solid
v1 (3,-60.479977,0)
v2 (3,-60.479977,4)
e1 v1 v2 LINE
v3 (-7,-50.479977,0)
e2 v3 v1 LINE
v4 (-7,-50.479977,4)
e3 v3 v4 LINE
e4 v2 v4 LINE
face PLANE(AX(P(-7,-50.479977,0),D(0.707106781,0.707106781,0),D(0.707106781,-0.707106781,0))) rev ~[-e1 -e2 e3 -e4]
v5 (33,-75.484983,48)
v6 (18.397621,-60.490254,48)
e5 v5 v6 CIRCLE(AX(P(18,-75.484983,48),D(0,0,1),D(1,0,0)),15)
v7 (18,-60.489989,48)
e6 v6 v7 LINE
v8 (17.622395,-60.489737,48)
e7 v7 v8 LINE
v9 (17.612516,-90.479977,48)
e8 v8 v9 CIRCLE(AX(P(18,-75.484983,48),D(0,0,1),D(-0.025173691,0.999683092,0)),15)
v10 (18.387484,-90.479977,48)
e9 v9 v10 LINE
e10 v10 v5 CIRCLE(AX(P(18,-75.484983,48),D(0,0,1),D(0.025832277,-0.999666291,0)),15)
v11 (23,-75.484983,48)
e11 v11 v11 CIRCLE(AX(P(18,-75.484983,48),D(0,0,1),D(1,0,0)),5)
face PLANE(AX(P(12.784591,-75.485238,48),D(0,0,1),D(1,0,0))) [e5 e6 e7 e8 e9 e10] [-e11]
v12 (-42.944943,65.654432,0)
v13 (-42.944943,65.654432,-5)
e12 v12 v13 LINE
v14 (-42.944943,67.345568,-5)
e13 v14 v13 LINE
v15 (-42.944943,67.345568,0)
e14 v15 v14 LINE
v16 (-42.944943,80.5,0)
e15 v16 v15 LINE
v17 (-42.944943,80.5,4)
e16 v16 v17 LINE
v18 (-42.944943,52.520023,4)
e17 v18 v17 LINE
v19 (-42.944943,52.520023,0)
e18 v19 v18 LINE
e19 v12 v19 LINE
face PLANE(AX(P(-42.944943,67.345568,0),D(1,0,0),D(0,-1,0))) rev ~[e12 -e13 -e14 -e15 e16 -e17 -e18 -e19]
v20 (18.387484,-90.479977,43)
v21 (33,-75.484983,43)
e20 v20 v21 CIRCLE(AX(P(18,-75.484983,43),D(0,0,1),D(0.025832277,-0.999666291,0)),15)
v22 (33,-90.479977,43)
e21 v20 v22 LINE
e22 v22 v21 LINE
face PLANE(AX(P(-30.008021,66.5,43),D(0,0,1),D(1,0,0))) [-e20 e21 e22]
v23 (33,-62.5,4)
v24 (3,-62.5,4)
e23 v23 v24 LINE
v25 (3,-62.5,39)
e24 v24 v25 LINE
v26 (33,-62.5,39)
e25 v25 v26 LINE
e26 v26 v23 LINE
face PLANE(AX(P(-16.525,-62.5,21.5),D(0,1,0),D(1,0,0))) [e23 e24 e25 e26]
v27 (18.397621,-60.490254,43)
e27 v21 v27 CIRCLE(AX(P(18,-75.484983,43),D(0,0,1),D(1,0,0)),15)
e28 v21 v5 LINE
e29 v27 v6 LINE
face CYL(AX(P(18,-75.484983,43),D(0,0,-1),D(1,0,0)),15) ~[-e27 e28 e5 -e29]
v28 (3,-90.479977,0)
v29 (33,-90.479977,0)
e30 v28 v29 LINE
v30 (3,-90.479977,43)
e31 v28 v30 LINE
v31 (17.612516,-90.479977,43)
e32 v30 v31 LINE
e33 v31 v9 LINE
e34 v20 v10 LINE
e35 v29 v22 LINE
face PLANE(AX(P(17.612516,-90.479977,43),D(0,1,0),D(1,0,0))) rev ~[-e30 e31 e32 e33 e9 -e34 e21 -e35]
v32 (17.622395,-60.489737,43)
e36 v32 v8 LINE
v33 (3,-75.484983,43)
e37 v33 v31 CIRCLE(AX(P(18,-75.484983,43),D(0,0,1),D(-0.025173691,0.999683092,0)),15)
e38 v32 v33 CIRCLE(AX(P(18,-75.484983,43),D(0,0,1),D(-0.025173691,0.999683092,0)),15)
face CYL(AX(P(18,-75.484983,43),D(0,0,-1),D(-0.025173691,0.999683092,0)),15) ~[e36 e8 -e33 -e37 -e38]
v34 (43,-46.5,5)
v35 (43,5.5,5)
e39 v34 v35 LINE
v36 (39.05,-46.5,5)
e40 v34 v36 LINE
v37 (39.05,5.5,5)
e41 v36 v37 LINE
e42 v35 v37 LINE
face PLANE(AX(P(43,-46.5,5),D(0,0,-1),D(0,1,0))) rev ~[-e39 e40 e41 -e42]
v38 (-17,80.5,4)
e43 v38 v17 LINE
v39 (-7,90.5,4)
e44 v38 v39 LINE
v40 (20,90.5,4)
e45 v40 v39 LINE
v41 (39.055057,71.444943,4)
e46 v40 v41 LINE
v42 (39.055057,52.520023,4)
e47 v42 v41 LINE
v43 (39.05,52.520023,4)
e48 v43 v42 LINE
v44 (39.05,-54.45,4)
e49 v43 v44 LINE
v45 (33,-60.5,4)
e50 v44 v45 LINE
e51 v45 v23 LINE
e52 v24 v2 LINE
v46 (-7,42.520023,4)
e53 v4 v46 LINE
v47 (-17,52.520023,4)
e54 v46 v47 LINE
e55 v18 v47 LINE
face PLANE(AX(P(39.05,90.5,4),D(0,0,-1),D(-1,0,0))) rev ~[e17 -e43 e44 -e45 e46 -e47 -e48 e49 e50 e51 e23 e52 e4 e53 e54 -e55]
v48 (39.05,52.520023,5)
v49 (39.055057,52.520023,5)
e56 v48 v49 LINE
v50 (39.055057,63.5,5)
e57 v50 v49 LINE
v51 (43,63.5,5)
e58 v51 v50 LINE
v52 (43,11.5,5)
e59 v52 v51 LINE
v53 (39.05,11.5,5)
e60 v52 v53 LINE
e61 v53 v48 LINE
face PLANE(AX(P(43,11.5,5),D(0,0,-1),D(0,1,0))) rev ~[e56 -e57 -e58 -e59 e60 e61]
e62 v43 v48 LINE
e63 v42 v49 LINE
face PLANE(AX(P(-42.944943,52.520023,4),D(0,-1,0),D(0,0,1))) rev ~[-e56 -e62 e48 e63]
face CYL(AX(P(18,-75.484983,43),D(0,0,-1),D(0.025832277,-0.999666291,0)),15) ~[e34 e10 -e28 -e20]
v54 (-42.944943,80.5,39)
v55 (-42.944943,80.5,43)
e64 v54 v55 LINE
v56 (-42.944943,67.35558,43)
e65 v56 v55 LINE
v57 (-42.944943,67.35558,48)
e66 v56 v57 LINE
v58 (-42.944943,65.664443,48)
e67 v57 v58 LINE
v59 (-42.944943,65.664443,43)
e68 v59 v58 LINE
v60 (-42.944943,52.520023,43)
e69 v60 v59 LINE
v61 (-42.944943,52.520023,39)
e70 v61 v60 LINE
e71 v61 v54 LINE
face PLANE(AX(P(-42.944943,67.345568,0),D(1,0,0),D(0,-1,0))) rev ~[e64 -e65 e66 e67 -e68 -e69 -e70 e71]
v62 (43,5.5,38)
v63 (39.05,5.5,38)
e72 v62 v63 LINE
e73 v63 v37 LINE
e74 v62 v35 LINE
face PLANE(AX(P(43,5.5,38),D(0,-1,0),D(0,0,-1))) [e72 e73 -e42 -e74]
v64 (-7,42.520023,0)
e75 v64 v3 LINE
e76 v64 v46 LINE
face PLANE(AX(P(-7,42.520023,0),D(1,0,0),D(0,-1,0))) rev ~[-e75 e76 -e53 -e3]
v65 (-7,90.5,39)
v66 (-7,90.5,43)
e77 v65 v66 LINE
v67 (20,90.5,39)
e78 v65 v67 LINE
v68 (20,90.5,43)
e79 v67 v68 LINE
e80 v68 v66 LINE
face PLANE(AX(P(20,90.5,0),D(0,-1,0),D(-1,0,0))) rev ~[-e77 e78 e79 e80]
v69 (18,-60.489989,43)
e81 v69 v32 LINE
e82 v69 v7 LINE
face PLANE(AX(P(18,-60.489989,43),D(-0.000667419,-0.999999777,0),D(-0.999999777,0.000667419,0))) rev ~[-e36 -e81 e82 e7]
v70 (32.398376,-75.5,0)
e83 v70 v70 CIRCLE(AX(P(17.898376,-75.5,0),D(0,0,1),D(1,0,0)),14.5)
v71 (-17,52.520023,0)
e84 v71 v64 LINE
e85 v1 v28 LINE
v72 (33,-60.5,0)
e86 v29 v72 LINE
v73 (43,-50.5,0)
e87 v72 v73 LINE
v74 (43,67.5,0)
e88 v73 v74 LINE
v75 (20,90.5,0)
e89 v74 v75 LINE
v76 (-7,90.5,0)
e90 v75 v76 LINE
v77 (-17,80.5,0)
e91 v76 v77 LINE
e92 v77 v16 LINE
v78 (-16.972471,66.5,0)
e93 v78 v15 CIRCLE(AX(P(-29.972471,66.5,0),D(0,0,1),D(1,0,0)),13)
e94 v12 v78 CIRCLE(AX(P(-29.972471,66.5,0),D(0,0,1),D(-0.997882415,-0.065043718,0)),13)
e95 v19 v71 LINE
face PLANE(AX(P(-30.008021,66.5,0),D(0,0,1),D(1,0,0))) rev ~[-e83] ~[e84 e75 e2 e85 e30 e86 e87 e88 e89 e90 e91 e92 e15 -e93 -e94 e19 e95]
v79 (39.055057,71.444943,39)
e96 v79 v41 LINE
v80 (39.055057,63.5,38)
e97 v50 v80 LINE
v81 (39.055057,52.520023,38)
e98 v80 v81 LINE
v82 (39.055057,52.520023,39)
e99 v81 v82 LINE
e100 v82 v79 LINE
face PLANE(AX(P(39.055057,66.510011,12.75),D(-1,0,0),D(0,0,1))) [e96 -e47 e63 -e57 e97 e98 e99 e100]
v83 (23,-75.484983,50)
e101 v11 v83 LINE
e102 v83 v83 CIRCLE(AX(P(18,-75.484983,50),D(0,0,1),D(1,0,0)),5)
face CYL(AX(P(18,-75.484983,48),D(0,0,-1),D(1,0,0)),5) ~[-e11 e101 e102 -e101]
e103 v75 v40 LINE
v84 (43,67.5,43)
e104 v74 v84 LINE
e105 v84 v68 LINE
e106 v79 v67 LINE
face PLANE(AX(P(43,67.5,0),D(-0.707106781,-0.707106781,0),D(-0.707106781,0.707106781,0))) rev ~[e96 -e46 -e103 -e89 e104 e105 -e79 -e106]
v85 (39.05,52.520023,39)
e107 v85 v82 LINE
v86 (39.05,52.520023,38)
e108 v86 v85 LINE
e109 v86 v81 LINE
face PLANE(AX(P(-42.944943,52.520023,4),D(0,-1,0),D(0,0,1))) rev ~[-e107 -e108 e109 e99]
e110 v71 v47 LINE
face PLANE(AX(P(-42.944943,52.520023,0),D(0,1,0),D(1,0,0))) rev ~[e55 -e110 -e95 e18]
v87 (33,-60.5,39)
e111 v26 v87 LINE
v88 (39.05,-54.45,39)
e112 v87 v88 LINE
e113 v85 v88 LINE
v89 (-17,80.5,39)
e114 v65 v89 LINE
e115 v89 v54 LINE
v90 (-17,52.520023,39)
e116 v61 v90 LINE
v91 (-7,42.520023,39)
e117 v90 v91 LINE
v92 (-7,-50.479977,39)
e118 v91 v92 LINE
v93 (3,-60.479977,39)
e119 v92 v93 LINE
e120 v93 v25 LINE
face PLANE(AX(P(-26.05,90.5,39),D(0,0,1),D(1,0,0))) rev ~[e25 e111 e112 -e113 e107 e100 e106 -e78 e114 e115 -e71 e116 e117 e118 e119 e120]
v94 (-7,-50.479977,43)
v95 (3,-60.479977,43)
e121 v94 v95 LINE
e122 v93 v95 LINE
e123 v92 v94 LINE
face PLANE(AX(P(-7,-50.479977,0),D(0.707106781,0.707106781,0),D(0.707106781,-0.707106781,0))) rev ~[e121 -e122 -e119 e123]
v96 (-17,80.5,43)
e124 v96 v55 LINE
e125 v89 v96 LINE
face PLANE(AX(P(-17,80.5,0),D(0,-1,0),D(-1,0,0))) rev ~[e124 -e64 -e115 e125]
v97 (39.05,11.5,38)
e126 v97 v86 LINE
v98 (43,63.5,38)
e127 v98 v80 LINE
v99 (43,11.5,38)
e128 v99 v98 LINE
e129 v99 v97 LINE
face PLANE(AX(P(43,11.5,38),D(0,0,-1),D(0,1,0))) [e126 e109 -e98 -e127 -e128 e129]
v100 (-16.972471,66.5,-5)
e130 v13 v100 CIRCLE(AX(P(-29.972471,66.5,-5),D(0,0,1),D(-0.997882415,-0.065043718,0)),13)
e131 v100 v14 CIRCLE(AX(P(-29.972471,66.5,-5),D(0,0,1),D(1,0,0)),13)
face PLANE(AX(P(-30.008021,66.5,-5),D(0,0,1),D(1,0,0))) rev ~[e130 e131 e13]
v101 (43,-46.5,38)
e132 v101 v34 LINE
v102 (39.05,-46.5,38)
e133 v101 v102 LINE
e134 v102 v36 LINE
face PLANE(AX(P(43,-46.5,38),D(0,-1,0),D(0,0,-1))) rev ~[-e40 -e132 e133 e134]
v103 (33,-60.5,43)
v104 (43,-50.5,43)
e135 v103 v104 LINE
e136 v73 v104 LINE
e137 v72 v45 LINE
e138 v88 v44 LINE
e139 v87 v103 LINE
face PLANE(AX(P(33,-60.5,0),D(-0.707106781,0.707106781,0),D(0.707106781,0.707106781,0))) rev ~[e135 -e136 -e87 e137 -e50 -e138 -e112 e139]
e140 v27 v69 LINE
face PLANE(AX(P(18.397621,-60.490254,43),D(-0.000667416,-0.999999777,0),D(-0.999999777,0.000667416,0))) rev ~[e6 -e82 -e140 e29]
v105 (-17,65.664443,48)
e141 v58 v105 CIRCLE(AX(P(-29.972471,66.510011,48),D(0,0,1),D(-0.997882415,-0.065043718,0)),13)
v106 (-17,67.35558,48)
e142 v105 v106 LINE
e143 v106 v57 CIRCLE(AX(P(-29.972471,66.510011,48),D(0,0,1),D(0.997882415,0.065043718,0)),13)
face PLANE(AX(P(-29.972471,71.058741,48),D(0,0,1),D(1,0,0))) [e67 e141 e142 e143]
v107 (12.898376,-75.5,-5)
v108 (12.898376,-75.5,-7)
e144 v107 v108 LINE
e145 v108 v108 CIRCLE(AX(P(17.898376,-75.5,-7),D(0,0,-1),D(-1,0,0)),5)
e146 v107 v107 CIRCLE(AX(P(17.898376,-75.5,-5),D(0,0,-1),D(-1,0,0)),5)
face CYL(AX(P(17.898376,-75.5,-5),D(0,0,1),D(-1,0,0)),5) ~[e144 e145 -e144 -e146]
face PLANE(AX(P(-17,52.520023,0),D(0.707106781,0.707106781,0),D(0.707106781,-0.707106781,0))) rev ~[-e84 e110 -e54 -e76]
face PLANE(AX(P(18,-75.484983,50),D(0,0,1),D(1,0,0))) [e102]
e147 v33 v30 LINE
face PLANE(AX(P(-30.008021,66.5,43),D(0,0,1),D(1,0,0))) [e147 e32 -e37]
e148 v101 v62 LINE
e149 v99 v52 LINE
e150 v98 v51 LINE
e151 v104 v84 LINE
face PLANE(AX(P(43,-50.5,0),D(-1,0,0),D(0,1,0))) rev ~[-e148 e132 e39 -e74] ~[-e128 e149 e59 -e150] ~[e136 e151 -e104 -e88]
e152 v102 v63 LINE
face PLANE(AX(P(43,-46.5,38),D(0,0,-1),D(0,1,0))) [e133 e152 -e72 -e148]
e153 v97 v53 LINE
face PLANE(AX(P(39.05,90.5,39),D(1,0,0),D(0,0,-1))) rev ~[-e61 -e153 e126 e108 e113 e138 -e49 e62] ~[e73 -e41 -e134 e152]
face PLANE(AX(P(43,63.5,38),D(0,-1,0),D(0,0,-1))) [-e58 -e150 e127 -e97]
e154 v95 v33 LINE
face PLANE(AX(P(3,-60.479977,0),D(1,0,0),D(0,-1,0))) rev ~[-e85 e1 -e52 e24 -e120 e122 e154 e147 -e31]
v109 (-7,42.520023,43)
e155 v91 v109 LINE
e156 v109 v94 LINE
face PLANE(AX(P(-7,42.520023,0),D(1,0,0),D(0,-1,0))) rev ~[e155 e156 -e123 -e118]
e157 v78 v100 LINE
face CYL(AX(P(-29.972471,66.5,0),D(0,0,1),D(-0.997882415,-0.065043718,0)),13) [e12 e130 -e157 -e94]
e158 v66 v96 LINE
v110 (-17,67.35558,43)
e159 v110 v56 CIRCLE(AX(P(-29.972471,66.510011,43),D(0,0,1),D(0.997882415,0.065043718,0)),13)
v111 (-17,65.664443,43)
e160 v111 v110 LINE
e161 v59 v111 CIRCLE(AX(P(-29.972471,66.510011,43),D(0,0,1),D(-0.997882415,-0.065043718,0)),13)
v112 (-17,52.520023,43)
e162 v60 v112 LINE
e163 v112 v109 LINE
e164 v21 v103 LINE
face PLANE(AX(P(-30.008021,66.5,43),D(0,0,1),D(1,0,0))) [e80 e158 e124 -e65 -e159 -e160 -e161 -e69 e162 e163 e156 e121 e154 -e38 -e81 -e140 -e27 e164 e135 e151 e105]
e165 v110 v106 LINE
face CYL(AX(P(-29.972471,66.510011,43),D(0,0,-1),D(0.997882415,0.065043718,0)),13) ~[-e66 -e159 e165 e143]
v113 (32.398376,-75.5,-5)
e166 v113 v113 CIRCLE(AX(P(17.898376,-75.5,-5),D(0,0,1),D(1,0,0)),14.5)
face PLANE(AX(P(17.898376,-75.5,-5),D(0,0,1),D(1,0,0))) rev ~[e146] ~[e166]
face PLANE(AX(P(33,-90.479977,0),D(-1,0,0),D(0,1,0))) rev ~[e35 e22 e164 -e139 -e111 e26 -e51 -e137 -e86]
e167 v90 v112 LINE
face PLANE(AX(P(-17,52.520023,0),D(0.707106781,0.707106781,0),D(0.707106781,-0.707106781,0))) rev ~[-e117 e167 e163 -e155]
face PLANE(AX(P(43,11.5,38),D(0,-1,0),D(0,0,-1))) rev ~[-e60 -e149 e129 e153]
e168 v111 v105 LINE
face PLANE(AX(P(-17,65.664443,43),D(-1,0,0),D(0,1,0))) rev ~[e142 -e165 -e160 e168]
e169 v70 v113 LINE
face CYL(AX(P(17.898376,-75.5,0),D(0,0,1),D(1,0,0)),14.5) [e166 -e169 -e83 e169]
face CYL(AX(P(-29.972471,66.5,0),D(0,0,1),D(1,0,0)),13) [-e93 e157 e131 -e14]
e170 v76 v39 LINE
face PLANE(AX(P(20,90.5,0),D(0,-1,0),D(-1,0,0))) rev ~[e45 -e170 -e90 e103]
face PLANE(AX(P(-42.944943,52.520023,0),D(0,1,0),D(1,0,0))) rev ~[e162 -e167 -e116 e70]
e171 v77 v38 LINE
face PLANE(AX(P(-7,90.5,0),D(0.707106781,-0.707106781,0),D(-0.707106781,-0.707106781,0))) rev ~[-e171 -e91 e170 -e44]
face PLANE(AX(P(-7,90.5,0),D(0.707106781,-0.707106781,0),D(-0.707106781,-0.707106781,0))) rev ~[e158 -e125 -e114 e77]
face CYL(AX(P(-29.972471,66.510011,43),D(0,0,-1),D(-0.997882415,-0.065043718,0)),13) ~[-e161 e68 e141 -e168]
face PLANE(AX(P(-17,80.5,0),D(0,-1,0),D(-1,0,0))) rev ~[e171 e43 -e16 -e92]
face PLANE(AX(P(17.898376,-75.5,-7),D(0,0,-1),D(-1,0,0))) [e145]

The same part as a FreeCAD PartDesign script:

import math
import FreeCAD as App
import Part
import Sketcher

V = App.Vector
Q = App.Units.Quantity

doc = App.newDocument("Part")
body = doc.addObject("PartDesign::Body", "Body")

sketch1 = doc.addObject("Sketcher::SketchObject", "Sketch")
body.addObject(sketch1)
sketch1.AttachmentSupport = (doc.XY_Plane, [""])
sketch1.MapMode = "FlatFace"
sketch1.addGeometry(Part.LineSegment(V(-17, 80.5, 0), V(-42.944943, 80.5, 0)), False)
sketch1.addGeometry(Part.LineSegment(V(-42.944943, 80.5, 0), V(-42.944943, 67.345568, 0)), False)
sketch1.addGeometry(Part.ArcOfCircle(Part.Circle(V(-29.972471, 66.5, 0), V(0, 0, 1), 13), math.radians(0), math.radians(176.270637)), False)
sketch1.addGeometry(Part.ArcOfCircle(Part.Circle(V(-29.972471, 66.5, 0), V(0, 0, 1), 13), math.radians(-176.270637), math.radians(0)), False)
sketch1.addGeometry(Part.LineSegment(V(-42.944943, 65.654432, 0), V(-42.944943, 52.520023, 0)), False)
sketch1.addGeometry(Part.LineSegment(V(-42.944943, 52.520023, 0), V(-17, 52.520023, 0)), False)
sketch1.addGeometry(Part.LineSegment(V(-17, 52.520023, 0), V(-7, 42.520023, 0)), False)
sketch1.addGeometry(Part.LineSegment(V(-7, 42.520023, 0), V(-7, -50.479977, 0)), False)
sketch1.addGeometry(Part.LineSegment(V(-7, -50.479977, 0), V(3, -60.479977, 0)), False)
sketch1.addGeometry(Part.LineSegment(V(3, -60.479977, 0), V(3, -90.479977, 0)), False)
sketch1.addGeometry(Part.LineSegment(V(3, -90.479977, 0), V(33, -90.479977, 0)), False)
sketch1.addGeometry(Part.LineSegment(V(33, -90.479977, 0), V(33, -60.5, 0)), False)
sketch1.addGeometry(Part.LineSegment(V(33, -60.5, 0), V(43, -50.5, 0)), False)
sketch1.addGeometry(Part.LineSegment(V(43, -50.5, 0), V(43, 67.5, 0)), False)
sketch1.addGeometry(Part.LineSegment(V(43, 67.5, 0), V(20, 90.5, 0)), False)
sketch1.addGeometry(Part.LineSegment(V(20, 90.5, 0), V(-7, 90.5, 0)), False)
sketch1.addGeometry(Part.LineSegment(V(-7, 90.5, 0), V(-17, 80.5, 0)), False)
sketch1.addGeometry(Part.Circle(V(17.898376, -75.5, 0), V(0, 0, 1), 14.5), False)
sketch1.addConstraint(Sketcher.Constraint("Coincident", 0, 2, 1, 1))
sketch1.addConstraint(Sketcher.Constraint("Coincident", 1, 2, 2, 2))
sketch1.addConstraint(Sketcher.Constraint("Tangent", 2, 1, 3, 2))
sketch1.addConstraint(Sketcher.Constraint("Coincident", 3, 1, 4, 1))
sketch1.addConstraint(Sketcher.Constraint("Coincident", 4, 2, 5, 1))
sketch1.addConstraint(Sketcher.Constraint("Coincident", 5, 2, 6, 1))
sketch1.addConstraint(Sketcher.Constraint("Coincident", 6, 2, 7, 1))
sketch1.addConstraint(Sketcher.Constraint("Coincident", 7, 2, 8, 1))
sketch1.addConstraint(Sketcher.Constraint("Coincident", 8, 2, 9, 1))
sketch1.addConstraint(Sketcher.Constraint("Coincident", 9, 2, 10, 1))
sketch1.addConstraint(Sketcher.Constraint("Coincident", 10, 2, 11, 1))
sketch1.addConstraint(Sketcher.Constraint("Coincident", 11, 2, 12, 1))
sketch1.addConstraint(Sketcher.Constraint("Coincident", 12, 2, 13, 1))
sketch1.addConstraint(Sketcher.Constraint("Coincident", 13, 2, 14, 1))
sketch1.addConstraint(Sketcher.Constraint("Coincident", 14, 2, 15, 1))
sketch1.addConstraint(Sketcher.Constraint("Coincident", 15, 2, 16, 1))
sketch1.addConstraint(Sketcher.Constraint("Coincident", 16, 2, 0, 1))
sketch1.addConstraint(Sketcher.Constraint("Horizontal", 0))
sketch1.addConstraint(Sketcher.Constraint("Vertical", 1))
sketch1.addConstraint(Sketcher.Constraint("Vertical", 4))
sketch1.addConstraint(Sketcher.Constraint("Horizontal", 5))
sketch1.addConstraint(Sketcher.Constraint("Vertical", 7))
sketch1.addConstraint(Sketcher.Constraint("Vertical", 9))
sketch1.addConstraint(Sketcher.Constraint("Horizontal", 10))
sketch1.addConstraint(Sketcher.Constraint("Vertical", 11))
sketch1.addConstraint(Sketcher.Constraint("Vertical", 13))
sketch1.addConstraint(Sketcher.Constraint("Horizontal", 15))
sketch1.addConstraint(Sketcher.Constraint("Equal", 2, 3))
sketch1.addConstraint(Sketcher.Constraint("Parallel", 6, 8))
sketch1.addConstraint(Sketcher.Constraint("Perpendicular", 8, 12))
sketch1.addConstraint(Sketcher.Constraint("Perpendicular", 12, 14))
sketch1.addConstraint(Sketcher.Constraint("Perpendicular", 14, 16))
sketch1.addConstraint(Sketcher.Constraint("Horizontal", 3, 3, 2, 1))
sketch1.addConstraint(Sketcher.Constraint("Vertical", 1, 2, 3, 1))
sketch1.addConstraint(Sketcher.Constraint("Vertical", 7, 2, 15, 2))
sketch1.addConstraint(Sketcher.Constraint("Vertical", 5, 2, 16, 2))
sketch1.addConstraint(Sketcher.Constraint("Equal", 10, 9))
sketch1.addConstraint(Sketcher.Constraint("Equal", 6, 8))
sketch1.addConstraint(Sketcher.Constraint("Equal", 8, 12))
sketch1.addConstraint(Sketcher.Constraint("Equal", 12, 16))
sketch1.addConstraint(Sketcher.Constraint("Diameter", 17, Q("29 mm")))
sketch1.addConstraint(Sketcher.Constraint("Radius", 2, Q("13 mm")))
sketch1.addConstraint(Sketcher.Constraint("DistanceX", 10, 1, 10, 2, Q("30 mm")))
sketch1.addConstraint(Sketcher.Constraint("DistanceX", 15, 2, 15, 1, Q("27 mm")))
sketch1.addConstraint(Sketcher.Constraint("DistanceY", 7, 2, 7, 1, Q("93 mm")))
sketch1.addConstraint(Sketcher.Constraint("DistanceY", 13, 1, 13, 2, Q("118 mm")))
sketch1.addConstraint(Sketcher.Constraint("DistanceX", 5, 2, -1, 1, Q("17 mm")))
sketch1.addConstraint(Sketcher.Constraint("DistanceX", 6, 2, -1, 1, Q("7 mm")))
sketch1.addConstraint(Sketcher.Constraint("DistanceY", 17, 3, 2, 3, Q("142 mm")))
sketch1.addConstraint(Sketcher.Constraint("DistanceY", 2, 3, 0, 2, Q("14 mm")))
sketch1.addConstraint(Sketcher.Constraint("DistanceY", -1, 1, 2, 3, Q("66.5 mm")))
sketch1.addConstraint(Sketcher.Constraint("DistanceY", 1, 2, 1, 1, Q("13.154432 mm")))
sketch1.addConstraint(Sketcher.Constraint("DistanceY", 4, 2, 4, 1, Q("13.134409 mm")))
sketch1.addConstraint(Sketcher.Constraint("DistanceX", 0, 2, 0, 1, Q("25.944943 mm")))
sketch1.addConstraint(Sketcher.Constraint("DistanceX", 0, 2, 17, 3, Q("60.843319 mm")))
pad1 = doc.addObject("PartDesign::Pad", "Pad")
body.addObject(pad1)
pad1.Profile = sketch1
pad1.Length = 43

sketch2 = doc.addObject("Sketcher::SketchObject", "Sketch001")
body.addObject(sketch2)
sketch2.AttachmentSupport = (doc.XY_Plane, [""])
sketch2.MapMode = "FlatFace"
sketch2.addGeometry(Part.Circle(V(17.898376, -75.5, 0), V(0, 0, 1), 14.5), False)
sketch2.addConstraint(Sketcher.Constraint("Diameter", 0, Q("29 mm")))
sketch2.addConstraint(Sketcher.Constraint("DistanceY", 0, 3, -1, 1, Q("75.5 mm")))
sketch2.addConstraint(Sketcher.Constraint("DistanceX", -1, 1, 0, 3, Q("17.898376 mm")))
pad2 = doc.addObject("PartDesign::Pad", "Pad001")
body.addObject(pad2)
pad2.Profile = sketch2
pad2.Length = 43

sketch3 = doc.addObject("Sketcher::SketchObject", "Sketch002")
body.addObject(sketch3)
sketch3.AttachmentSupport = (doc.XY_Plane, [""])
sketch3.MapMode = "FlatFace"
sketch3.addGeometry(Part.ArcOfCircle(Part.Circle(V(-29.972471, 66.5, 0), V(0, 0, 1), 13), math.radians(0), math.radians(176.270637)), False)
sketch3.addGeometry(Part.LineSegment(V(-42.944943, 67.345568, 0), V(-42.944943, 65.654432, 0)), False)
sketch3.addGeometry(Part.ArcOfCircle(Part.Circle(V(-29.972471, 66.5, 0), V(0, 0, 1), 13), math.radians(-176.270637), math.radians(0)), False)
sketch3.addConstraint(Sketcher.Constraint("Coincident", 0, 2, 1, 1))
sketch3.addConstraint(Sketcher.Constraint("Coincident", 1, 2, 2, 1))
sketch3.addConstraint(Sketcher.Constraint("Tangent", 2, 2, 0, 1))
sketch3.addConstraint(Sketcher.Constraint("Vertical", 1))
sketch3.addConstraint(Sketcher.Constraint("Equal", 0, 2))
sketch3.addConstraint(Sketcher.Constraint("Horizontal", 0, 3, 2, 2))
sketch3.addConstraint(Sketcher.Constraint("Radius", 0, Q("13 mm")))
sketch3.addConstraint(Sketcher.Constraint("DistanceY", -1, 1, 0, 3, Q("66.5 mm")))
sketch3.addConstraint(Sketcher.Constraint("DistanceY", 1, 2, 1, 1, Q("1.691137 mm")))
sketch3.addConstraint(Sketcher.Constraint("DistanceX", 0, 3, -1, 1, Q("29.972471 mm")))
pad3 = doc.addObject("PartDesign::Pad", "Pad002")
body.addObject(pad3)
pad3.Profile = sketch3
pad3.Length = 43

sketch4 = doc.addObject("Sketcher::SketchObject", "Sketch003")
body.addObject(sketch4)
sketch4.AttachmentSupport = (doc.XY_Plane, [""])
sketch4.MapMode = "FlatFace"
sketch4.addGeometry(Part.ArcOfCircle(Part.Circle(V(-29.972471, 66.5, 0), V(0, 0, 1), 13), math.radians(0), math.radians(176.270637)), False)
sketch4.addGeometry(Part.LineSegment(V(-42.944943, 67.345568, 0), V(-42.944943, 65.654432, 0)), False)
sketch4.addGeometry(Part.ArcOfCircle(Part.Circle(V(-29.972471, 66.5, 0), V(0, 0, 1), 13), math.radians(-176.270637), math.radians(0)), False)
sketch4.addConstraint(Sketcher.Constraint("Coincident", 0, 2, 1, 1))
sketch4.addConstraint(Sketcher.Constraint("Coincident", 1, 2, 2, 1))
sketch4.addConstraint(Sketcher.Constraint("Tangent", 2, 2, 0, 1))
sketch4.addConstraint(Sketcher.Constraint("Vertical", 1))
sketch4.addConstraint(Sketcher.Constraint("Equal", 0, 2))
sketch4.addConstraint(Sketcher.Constraint("Horizontal", 0, 3, 2, 2))
sketch4.addConstraint(Sketcher.Constraint("Radius", 0, Q("13 mm")))
sketch4.addConstraint(Sketcher.Constraint("DistanceY", -1, 1, 0, 3, Q("66.5 mm")))
sketch4.addConstraint(Sketcher.Constraint("DistanceY", 1, 2, 1, 1, Q("1.691137 mm")))
sketch4.addConstraint(Sketcher.Constraint("DistanceX", 0, 3, -1, 1, Q("29.972471 mm")))
pad4 = doc.addObject("PartDesign::Pad", "Pad003")
body.addObject(pad4)
pad4.Profile = sketch4
pad4.Length = 5
pad4.Reversed = True

sketch5 = doc.addObject("Sketcher::SketchObject", "Sketch004")
body.addObject(sketch5)
sketch5.AttachmentSupport = (doc.XY_Plane, [""])
sketch5.MapMode = "FlatFace"
sketch5.addGeometry(Part.Circle(V(17.898376, -75.5, 0), V(0, 0, 1), 14.5), False)
sketch5.addConstraint(Sketcher.Constraint("Diameter", 0, Q("29 mm")))
sketch5.addConstraint(Sketcher.Constraint("DistanceY", 0, 3, -1, 1, Q("75.5 mm")))
sketch5.addConstraint(Sketcher.Constraint("DistanceX", -1, 1, 0, 3, Q("17.898376 mm")))
pad5 = doc.addObject("PartDesign::Pad", "Pad004")
body.addObject(pad5)
pad5.Profile = sketch5
pad5.Length = 5
pad5.Reversed = True

sketch6 = doc.addObject("Sketcher::SketchObject", "Sketch005")
body.addObject(sketch6)
sketch6.AttachmentSupport = (doc.XY_Plane, [""])
sketch6.MapMode = "FlatFace"
sketch6.AttachmentOffset = App.Placement(V(0, 0, -5), App.Rotation())
sketch6.addGeometry(Part.Circle(V(17.898376, -75.5, 0), V(0, 0, 1), 5), False)
sketch6.addConstraint(Sketcher.Constraint("Diameter", 0, Q("10 mm")))
sketch6.addConstraint(Sketcher.Constraint("DistanceY", 0, 3, -1, 1, Q("75.5 mm")))
sketch6.addConstraint(Sketcher.Constraint("DistanceX", -1, 1, 0, 3, Q("17.898376 mm")))
pad6 = doc.addObject("PartDesign::Pad", "Pad005")
body.addObject(pad6)
pad6.Profile = sketch6
pad6.Length = 2
pad6.Reversed = True

sketch7 = doc.addObject("Sketcher::SketchObject", "Sketch006")
body.addObject(sketch7)
sketch7.AttachmentSupport = (doc.XY_Plane, [""])
sketch7.MapMode = "FlatFace"
sketch7.AttachmentOffset = App.Placement(V(0, 0, 43), App.Rotation())
sketch7.addGeometry(Part.ArcOfCircle(Part.Circle(V(-29.972471, 66.510011, 0), V(0, 0, 1), 13), math.radians(3.729363), math.radians(176.270637)), False)
sketch7.addGeometry(Part.LineSegment(V(-42.944943, 67.35558, 0), V(-42.944943, 65.664443, 0)), False)
sketch7.addGeometry(Part.ArcOfCircle(Part.Circle(V(-29.972471, 66.510011, 0), V(0, 0, 1), 13), math.radians(-176.270637), math.radians(-3.729363)), False)
sketch7.addGeometry(Part.LineSegment(V(-17, 65.664443, 0), V(-17, 67.35558, 0)), False)
sketch7.addConstraint(Sketcher.Constraint("Coincident", 0, 2, 1, 1))
sketch7.addConstraint(Sketcher.Constraint("Coincident", 1, 2, 2, 1))
sketch7.addConstraint(Sketcher.Constraint("Coincident", 2, 2, 3, 1))
sketch7.addConstraint(Sketcher.Constraint("Coincident", 3, 2, 0, 1))
sketch7.addConstraint(Sketcher.Constraint("Vertical", 1))
sketch7.addConstraint(Sketcher.Constraint("Vertical", 3))
sketch7.addConstraint(Sketcher.Constraint("Coincident", 2, 3, 0, 3))
sketch7.addConstraint(Sketcher.Constraint("Equal", 0, 2))
sketch7.addConstraint(Sketcher.Constraint("Horizontal", 1, 2, 2, 2))
sketch7.addConstraint(Sketcher.Constraint("Radius", 0, Q("13 mm")))
sketch7.addConstraint(Sketcher.Constraint("DistanceX", 2, 2, -1, 1, Q("17 mm")))
sketch7.addConstraint(Sketcher.Constraint("DistanceY", 1, 2, 1, 1, Q("1.691137 mm")))
sketch7.addConstraint(Sketcher.Constraint("DistanceY", -1, 1, 0, 3, Q("66.510011 mm")))
pad7 = doc.addObject("PartDesign::Pad", "Pad006")
body.addObject(pad7)
pad7.Profile = sketch7
pad7.Length = 5

sketch8 = doc.addObject("Sketcher::SketchObject", "Sketch007")
body.addObject(sketch8)
sketch8.AttachmentSupport = (doc.XY_Plane, [""])
sketch8.MapMode = "FlatFace"
sketch8.AttachmentOffset = App.Placement(V(0, 0, 43), App.Rotation())
sketch8.addGeometry(Part.ArcOfCircle(Part.Circle(V(18, -75.484983, 0), V(0, 0, 1), 15), math.radians(91.442499), math.radians(268.519755)), False)
sketch8.addGeometry(Part.LineSegment(V(17.612516, -90.479977, 0), V(18.387484, -90.479977, 0)), False)
sketch8.addGeometry(Part.ArcOfCircle(Part.Circle(V(18, -75.484983, 0), V(0, 0, 1), 15), math.radians(-88.519755), math.radians(0)), False)
sketch8.addGeometry(Part.ArcOfCircle(Part.Circle(V(18, -75.484983, 0), V(0, 0, 1), 15), math.radians(0), math.radians(88.481021)), False)
sketch8.addGeometry(Part.LineSegment(V(18.397621, -60.490254, 0), V(18, -60.489989, 0)), False)
sketch8.addGeometry(Part.LineSegment(V(18, -60.489989, 0), V(17.622395, -60.489737, 0)), False)
sketch8.addConstraint(Sketcher.Constraint("Coincident", 0, 2, 1, 1))
sketch8.addConstraint(Sketcher.Constraint("Coincident", 1, 2, 2, 1))
sketch8.addConstraint(Sketcher.Constraint("Tangent", 2, 2, 3, 1))
sketch8.addConstraint(Sketcher.Constraint("Coincident", 3, 2, 4, 1))
sketch8.addConstraint(Sketcher.Constraint("Coincident", 4, 2, 5, 1))
sketch8.addConstraint(Sketcher.Constraint("Coincident", 5, 2, 0, 1))
sketch8.addConstraint(Sketcher.Constraint("Horizontal", 1))
sketch8.addConstraint(Sketcher.Constraint("Coincident", 2, 3, 0, 3))
sketch8.addConstraint(Sketcher.Constraint("Equal", 0, 2))
sketch8.addConstraint(Sketcher.Constraint("Equal", 2, 3))
sketch8.addConstraint(Sketcher.Constraint("Parallel", 4, 5))
sketch8.addConstraint(Sketcher.Constraint("Horizontal", 3, 3, 2, 2))
sketch8.addConstraint(Sketcher.Constraint("Vertical", 3, 3, 4, 2))
sketch8.addConstraint(Sketcher.Constraint("Radius", 0, Q("15 mm")))
sketch8.addConstraint(Sketcher.Constraint("DistanceX", -1, 1, 0, 3, Q("18 mm")))
sketch8.addConstraint(Sketcher.Constraint("DistanceX", 1, 1, 1, 2, Q("0.774968 mm")))
sketch8.addConstraint(Sketcher.Constraint("Distance", 4, Q("0.397621 mm")))
sketch8.addConstraint(Sketcher.Constraint("DistanceY", 4, 2, -1, 1, Q("60.489989 mm")))
sketch8.addConstraint(Sketcher.Constraint("Distance", 5, Q("0.377605 mm")))
pad8 = doc.addObject("PartDesign::Pad", "Pad007")
body.addObject(pad8)
pad8.Profile = sketch8
pad8.Length = 5

sketch9 = doc.addObject("Sketcher::SketchObject", "Sketch008")
body.addObject(sketch9)
sketch9.AttachmentSupport = (doc.XY_Plane, [""])
sketch9.MapMode = "FlatFace"
sketch9.AttachmentOffset = App.Placement(V(0, 0, 48), App.Rotation())
sketch9.addGeometry(Part.Circle(V(18, -75.484983, 0), V(0, 0, 1), 5), False)
sketch9.addConstraint(Sketcher.Constraint("Diameter", 0, Q("10 mm")))
sketch9.addConstraint(Sketcher.Constraint("DistanceX", -1, 1, 0, 3, Q("18 mm")))
sketch9.addConstraint(Sketcher.Constraint("DistanceY", 0, 3, -1, 1, Q("75.484983 mm")))
pad9 = doc.addObject("PartDesign::Pad", "Pad008")
body.addObject(pad9)
pad9.Profile = sketch9
pad9.Length = 2

sketch10 = doc.addObject("Sketcher::SketchObject", "Sketch009")
body.addObject(sketch10)
sketch10.AttachmentSupport = (doc.YZ_Plane, [""])
sketch10.MapMode = "FlatFace"
sketch10.AttachmentOffset = App.Placement(V(0, 0, -42.944943), App.Rotation())
sketch10.addGeometry(Part.LineSegment(V(80.5, 4, 0), V(52.520023, 4, 0)), False)
sketch10.addGeometry(Part.LineSegment(V(52.520023, 4, 0), V(52.520023, 39, 0)), False)
sketch10.addGeometry(Part.LineSegment(V(52.520023, 39, 0), V(80.5, 39, 0)), False)
sketch10.addGeometry(Part.LineSegment(V(80.5, 39, 0), V(80.5, 4, 0)), False)
sketch10.addConstraint(Sketcher.Constraint("Coincident", 0, 2, 1, 1))
sketch10.addConstraint(Sketcher.Constraint("Coincident", 1, 2, 2, 1))
sketch10.addConstraint(Sketcher.Constraint("Coincident", 2, 2, 3, 1))
sketch10.addConstraint(Sketcher.Constraint("Coincident", 3, 2, 0, 1))
sketch10.addConstraint(Sketcher.Constraint("Horizontal", 0))
sketch10.addConstraint(Sketcher.Constraint("Vertical", 1))
sketch10.addConstraint(Sketcher.Constraint("Horizontal", 2))
sketch10.addConstraint(Sketcher.Constraint("Vertical", 3))
sketch10.addConstraint(Sketcher.Constraint("DistanceY", 1, 1, 1, 2, Q("35 mm")))
sketch10.addConstraint(Sketcher.Constraint("DistanceY", -1, 1, 0, 2, Q("4 mm")))
sketch10.addConstraint(Sketcher.Constraint("DistanceX", -1, 1, 2, 2, Q("80.5 mm")))
sketch10.addConstraint(Sketcher.Constraint("DistanceX", 0, 2, 0, 1, Q("27.979977 mm")))
pocket1 = doc.addObject("PartDesign::Pocket", "Pocket")
body.addObject(pocket1)
pocket1.Profile = sketch10
pocket1.Length = 82
pocket1.Reversed = True

sketch11 = doc.addObject("Sketcher::SketchObject", "Sketch010")
body.addObject(sketch11)
sketch11.AttachmentSupport = (doc.XZ_Plane, [""])
sketch11.MapMode = "FlatFace"
sketch11.AttachmentOffset = App.Placement(V(0, 0, -90.5), App.Rotation())
sketch11.addGeometry(Part.LineSegment(V(-26.05, 4, 0), V(-26.05, 39, 0)), False)
sketch11.addGeometry(Part.LineSegment(V(-26.05, 39, 0), V(39.05, 39, 0)), False)
sketch11.addGeometry(Part.LineSegment(V(39.05, 39, 0), V(39.05, 4, 0)), False)
sketch11.addGeometry(Part.LineSegment(V(39.05, 4, 0), V(-26.05, 4, 0)), False)
sketch11.addConstraint(Sketcher.Constraint("Coincident", 0, 2, 1, 1))
sketch11.addConstraint(Sketcher.Constraint("Coincident", 1, 2, 2, 1))
sketch11.addConstraint(Sketcher.Constraint("Coincident", 2, 2, 3, 1))
sketch11.addConstraint(Sketcher.Constraint("Coincident", 3, 2, 0, 1))
sketch11.addConstraint(Sketcher.Constraint("Vertical", 0))
sketch11.addConstraint(Sketcher.Constraint("Horizontal", 1))
sketch11.addConstraint(Sketcher.Constraint("Vertical", 2))
sketch11.addConstraint(Sketcher.Constraint("Horizontal", 3))
sketch11.addConstraint(Sketcher.Constraint("DistanceY", 0, 1, 0, 2, Q("35 mm")))
sketch11.addConstraint(Sketcher.Constraint("DistanceX", 1, 1, 1, 2, Q("65.1 mm")))
sketch11.addConstraint(Sketcher.Constraint("DistanceY", -1, 1, 0, 2, Q("39 mm")))
sketch11.addConstraint(Sketcher.Constraint("DistanceX", 0, 2, -1, 1, Q("26.05 mm")))
pocket2 = doc.addObject("PartDesign::Pocket", "Pocket001")
body.addObject(pocket2)
pocket2.Profile = sketch11
pocket2.Length = 153
pocket2.Reversed = True

sketch12 = doc.addObject("Sketcher::SketchObject", "Sketch011")
body.addObject(sketch12)
sketch12.AttachmentSupport = (doc.YZ_Plane, [""])
sketch12.MapMode = "FlatFace"
sketch12.AttachmentOffset = App.Placement(V(0, 0, 43), App.Rotation())
sketch12.addGeometry(Part.LineSegment(V(63.5, 38, 0), V(11.5, 38, 0)), False)
sketch12.addGeometry(Part.LineSegment(V(11.5, 38, 0), V(11.5, 5, 0)), False)
sketch12.addGeometry(Part.LineSegment(V(11.5, 5, 0), V(63.5, 5, 0)), False)
sketch12.addGeometry(Part.LineSegment(V(63.5, 5, 0), V(63.5, 38, 0)), False)
sketch12.addGeometry(Part.LineSegment(V(5.5, 38, 0), V(-46.5, 38, 0)), False)
sketch12.addGeometry(Part.LineSegment(V(-46.5, 38, 0), V(-46.5, 5, 0)), False)
sketch12.addGeometry(Part.LineSegment(V(-46.5, 5, 0), V(5.5, 5, 0)), False)
sketch12.addGeometry(Part.LineSegment(V(5.5, 5, 0), V(5.5, 38, 0)), False)
sketch12.addConstraint(Sketcher.Constraint("Coincident", 0, 2, 1, 1))
sketch12.addConstraint(Sketcher.Constraint("Coincident", 1, 2, 2, 1))
sketch12.addConstraint(Sketcher.Constraint("Coincident", 2, 2, 3, 1))
sketch12.addConstraint(Sketcher.Constraint("Coincident", 3, 2, 0, 1))
sketch12.addConstraint(Sketcher.Constraint("Coincident", 4, 2, 5, 1))
sketch12.addConstraint(Sketcher.Constraint("Coincident", 5, 2, 6, 1))
sketch12.addConstraint(Sketcher.Constraint("Coincident", 6, 2, 7, 1))
sketch12.addConstraint(Sketcher.Constraint("Coincident", 7, 2, 4, 1))
sketch12.addConstraint(Sketcher.Constraint("Horizontal", 0))
sketch12.addConstraint(Sketcher.Constraint("Vertical", 1))
sketch12.addConstraint(Sketcher.Constraint("Horizontal", 2))
sketch12.addConstraint(Sketcher.Constraint("Vertical", 3))
sketch12.addConstraint(Sketcher.Constraint("Horizontal", 4))
sketch12.addConstraint(Sketcher.Constraint("Vertical", 5))
sketch12.addConstraint(Sketcher.Constraint("Horizontal", 6))
sketch12.addConstraint(Sketcher.Constraint("Vertical", 7))
sketch12.addConstraint(Sketcher.Constraint("Horizontal", 3, 2, 4, 2))
sketch12.addConstraint(Sketcher.Constraint("Horizontal", 2, 2, 5, 2))
sketch12.addConstraint(Sketcher.Constraint("Equal", 2, 4))
sketch12.addConstraint(Sketcher.Constraint("DistanceX", 0, 2, 0, 1, Q("52 mm")))
sketch12.addConstraint(Sketcher.Constraint("DistanceY", 1, 2, 1, 1, Q("33 mm")))
sketch12.addConstraint(Sketcher.Constraint("DistanceY", -1, 1, 0, 2, Q("38 mm")))
sketch12.addConstraint(Sketcher.Constraint("DistanceX", 4, 2, 0, 2, Q("58 mm")))
sketch12.addConstraint(Sketcher.Constraint("DistanceX", -1, 1, 0, 2, Q("11.5 mm")))
pocket3 = doc.addObject("PartDesign::Pocket", "Pocket002")
body.addObject(pocket3)
pocket3.Profile = sketch12
pocket3.Length = 33

doc.recompute()
